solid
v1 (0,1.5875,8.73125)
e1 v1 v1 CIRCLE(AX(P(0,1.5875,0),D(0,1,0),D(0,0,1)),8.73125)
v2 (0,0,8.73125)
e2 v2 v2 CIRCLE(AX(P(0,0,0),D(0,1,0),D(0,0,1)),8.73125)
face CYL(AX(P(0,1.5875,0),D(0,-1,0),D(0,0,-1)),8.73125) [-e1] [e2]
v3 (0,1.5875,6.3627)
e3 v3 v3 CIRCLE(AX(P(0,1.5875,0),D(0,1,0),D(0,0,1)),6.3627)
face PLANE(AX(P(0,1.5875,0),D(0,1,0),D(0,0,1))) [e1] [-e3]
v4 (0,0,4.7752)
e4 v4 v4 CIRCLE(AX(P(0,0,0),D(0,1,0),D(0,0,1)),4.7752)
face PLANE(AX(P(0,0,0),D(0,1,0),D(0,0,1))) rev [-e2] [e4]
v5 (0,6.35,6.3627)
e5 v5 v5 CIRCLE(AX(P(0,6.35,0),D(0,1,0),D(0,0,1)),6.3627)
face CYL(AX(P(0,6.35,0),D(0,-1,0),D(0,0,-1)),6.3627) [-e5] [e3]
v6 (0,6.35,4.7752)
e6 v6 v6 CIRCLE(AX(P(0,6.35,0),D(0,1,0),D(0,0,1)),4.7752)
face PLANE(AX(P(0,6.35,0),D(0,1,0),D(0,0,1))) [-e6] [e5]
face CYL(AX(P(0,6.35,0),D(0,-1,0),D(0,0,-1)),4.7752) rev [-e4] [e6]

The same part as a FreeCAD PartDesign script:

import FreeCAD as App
import Part
import Sketcher
Q = App.Units.Quantity

doc = App.newDocument("Part")
body = doc.addObject("PartDesign::Body", "Body")

# Sketch on XZ plane
sketch1 = body.newObject("Sketcher::SketchObject", "Sketch")
sketch1.AttachmentSupport = (doc.getObject("XZ_Plane"), [""])
sketch1.MapMode = "FlatFace"
sketch1.addGeometry([
    Part.Circle(App.Vector(0, 0, 0), App.Vector(0, 0, 1), 6.3627),
    Part.Circle(App.Vector(0, 0, 0), App.Vector(0, 0, 1), 4.7752),
], False)
sketch1.addConstraint([
    Sketcher.Constraint("Coincident", 0, 3, -1, 1),
    Sketcher.Constraint("Coincident", 1, 3, -1, 1),
    Sketcher.Constraint("Diameter", 0, Q("0.501 in")),
    Sketcher.Constraint("Diameter", 1, Q("0.376 in")),
])
pad1 = body.newObject("PartDesign::Pad", "Pad")
pad1.Profile = sketch1
pad1.Length = Q("0.25 in")
pad1.Reversed = True

# Sketch on XZ plane
sketch2 = body.newObject("Sketcher::SketchObject", "Sketch001")
sketch2.AttachmentSupport = (doc.getObject("XZ_Plane"), [""])
sketch2.MapMode = "FlatFace"
sketch2.addGeometry([
    Part.Circle(App.Vector(0, 0, 0), App.Vector(0, 0, 1), 8.73125),
    Part.Circle(App.Vector(0, 0, 0), App.Vector(0, 0, 1), 6.3627),
], False)
sketch2.addConstraint([
    Sketcher.Constraint("Coincident", 0, 3, -1, 1),
    Sketcher.Constraint("Coincident", 1, 3, -1, 1),
    Sketcher.Constraint("Diameter", 0, Q("0.6875 in")),
    Sketcher.Constraint("Diameter", 1, Q("0.501 in")),
])
pad2 = body.newObject("PartDesign::Pad", "Pad001")
pad2.Profile = sketch2
pad2.Length = Q("0.0625 in")
pad2.Reversed = True

doc.recompute()
